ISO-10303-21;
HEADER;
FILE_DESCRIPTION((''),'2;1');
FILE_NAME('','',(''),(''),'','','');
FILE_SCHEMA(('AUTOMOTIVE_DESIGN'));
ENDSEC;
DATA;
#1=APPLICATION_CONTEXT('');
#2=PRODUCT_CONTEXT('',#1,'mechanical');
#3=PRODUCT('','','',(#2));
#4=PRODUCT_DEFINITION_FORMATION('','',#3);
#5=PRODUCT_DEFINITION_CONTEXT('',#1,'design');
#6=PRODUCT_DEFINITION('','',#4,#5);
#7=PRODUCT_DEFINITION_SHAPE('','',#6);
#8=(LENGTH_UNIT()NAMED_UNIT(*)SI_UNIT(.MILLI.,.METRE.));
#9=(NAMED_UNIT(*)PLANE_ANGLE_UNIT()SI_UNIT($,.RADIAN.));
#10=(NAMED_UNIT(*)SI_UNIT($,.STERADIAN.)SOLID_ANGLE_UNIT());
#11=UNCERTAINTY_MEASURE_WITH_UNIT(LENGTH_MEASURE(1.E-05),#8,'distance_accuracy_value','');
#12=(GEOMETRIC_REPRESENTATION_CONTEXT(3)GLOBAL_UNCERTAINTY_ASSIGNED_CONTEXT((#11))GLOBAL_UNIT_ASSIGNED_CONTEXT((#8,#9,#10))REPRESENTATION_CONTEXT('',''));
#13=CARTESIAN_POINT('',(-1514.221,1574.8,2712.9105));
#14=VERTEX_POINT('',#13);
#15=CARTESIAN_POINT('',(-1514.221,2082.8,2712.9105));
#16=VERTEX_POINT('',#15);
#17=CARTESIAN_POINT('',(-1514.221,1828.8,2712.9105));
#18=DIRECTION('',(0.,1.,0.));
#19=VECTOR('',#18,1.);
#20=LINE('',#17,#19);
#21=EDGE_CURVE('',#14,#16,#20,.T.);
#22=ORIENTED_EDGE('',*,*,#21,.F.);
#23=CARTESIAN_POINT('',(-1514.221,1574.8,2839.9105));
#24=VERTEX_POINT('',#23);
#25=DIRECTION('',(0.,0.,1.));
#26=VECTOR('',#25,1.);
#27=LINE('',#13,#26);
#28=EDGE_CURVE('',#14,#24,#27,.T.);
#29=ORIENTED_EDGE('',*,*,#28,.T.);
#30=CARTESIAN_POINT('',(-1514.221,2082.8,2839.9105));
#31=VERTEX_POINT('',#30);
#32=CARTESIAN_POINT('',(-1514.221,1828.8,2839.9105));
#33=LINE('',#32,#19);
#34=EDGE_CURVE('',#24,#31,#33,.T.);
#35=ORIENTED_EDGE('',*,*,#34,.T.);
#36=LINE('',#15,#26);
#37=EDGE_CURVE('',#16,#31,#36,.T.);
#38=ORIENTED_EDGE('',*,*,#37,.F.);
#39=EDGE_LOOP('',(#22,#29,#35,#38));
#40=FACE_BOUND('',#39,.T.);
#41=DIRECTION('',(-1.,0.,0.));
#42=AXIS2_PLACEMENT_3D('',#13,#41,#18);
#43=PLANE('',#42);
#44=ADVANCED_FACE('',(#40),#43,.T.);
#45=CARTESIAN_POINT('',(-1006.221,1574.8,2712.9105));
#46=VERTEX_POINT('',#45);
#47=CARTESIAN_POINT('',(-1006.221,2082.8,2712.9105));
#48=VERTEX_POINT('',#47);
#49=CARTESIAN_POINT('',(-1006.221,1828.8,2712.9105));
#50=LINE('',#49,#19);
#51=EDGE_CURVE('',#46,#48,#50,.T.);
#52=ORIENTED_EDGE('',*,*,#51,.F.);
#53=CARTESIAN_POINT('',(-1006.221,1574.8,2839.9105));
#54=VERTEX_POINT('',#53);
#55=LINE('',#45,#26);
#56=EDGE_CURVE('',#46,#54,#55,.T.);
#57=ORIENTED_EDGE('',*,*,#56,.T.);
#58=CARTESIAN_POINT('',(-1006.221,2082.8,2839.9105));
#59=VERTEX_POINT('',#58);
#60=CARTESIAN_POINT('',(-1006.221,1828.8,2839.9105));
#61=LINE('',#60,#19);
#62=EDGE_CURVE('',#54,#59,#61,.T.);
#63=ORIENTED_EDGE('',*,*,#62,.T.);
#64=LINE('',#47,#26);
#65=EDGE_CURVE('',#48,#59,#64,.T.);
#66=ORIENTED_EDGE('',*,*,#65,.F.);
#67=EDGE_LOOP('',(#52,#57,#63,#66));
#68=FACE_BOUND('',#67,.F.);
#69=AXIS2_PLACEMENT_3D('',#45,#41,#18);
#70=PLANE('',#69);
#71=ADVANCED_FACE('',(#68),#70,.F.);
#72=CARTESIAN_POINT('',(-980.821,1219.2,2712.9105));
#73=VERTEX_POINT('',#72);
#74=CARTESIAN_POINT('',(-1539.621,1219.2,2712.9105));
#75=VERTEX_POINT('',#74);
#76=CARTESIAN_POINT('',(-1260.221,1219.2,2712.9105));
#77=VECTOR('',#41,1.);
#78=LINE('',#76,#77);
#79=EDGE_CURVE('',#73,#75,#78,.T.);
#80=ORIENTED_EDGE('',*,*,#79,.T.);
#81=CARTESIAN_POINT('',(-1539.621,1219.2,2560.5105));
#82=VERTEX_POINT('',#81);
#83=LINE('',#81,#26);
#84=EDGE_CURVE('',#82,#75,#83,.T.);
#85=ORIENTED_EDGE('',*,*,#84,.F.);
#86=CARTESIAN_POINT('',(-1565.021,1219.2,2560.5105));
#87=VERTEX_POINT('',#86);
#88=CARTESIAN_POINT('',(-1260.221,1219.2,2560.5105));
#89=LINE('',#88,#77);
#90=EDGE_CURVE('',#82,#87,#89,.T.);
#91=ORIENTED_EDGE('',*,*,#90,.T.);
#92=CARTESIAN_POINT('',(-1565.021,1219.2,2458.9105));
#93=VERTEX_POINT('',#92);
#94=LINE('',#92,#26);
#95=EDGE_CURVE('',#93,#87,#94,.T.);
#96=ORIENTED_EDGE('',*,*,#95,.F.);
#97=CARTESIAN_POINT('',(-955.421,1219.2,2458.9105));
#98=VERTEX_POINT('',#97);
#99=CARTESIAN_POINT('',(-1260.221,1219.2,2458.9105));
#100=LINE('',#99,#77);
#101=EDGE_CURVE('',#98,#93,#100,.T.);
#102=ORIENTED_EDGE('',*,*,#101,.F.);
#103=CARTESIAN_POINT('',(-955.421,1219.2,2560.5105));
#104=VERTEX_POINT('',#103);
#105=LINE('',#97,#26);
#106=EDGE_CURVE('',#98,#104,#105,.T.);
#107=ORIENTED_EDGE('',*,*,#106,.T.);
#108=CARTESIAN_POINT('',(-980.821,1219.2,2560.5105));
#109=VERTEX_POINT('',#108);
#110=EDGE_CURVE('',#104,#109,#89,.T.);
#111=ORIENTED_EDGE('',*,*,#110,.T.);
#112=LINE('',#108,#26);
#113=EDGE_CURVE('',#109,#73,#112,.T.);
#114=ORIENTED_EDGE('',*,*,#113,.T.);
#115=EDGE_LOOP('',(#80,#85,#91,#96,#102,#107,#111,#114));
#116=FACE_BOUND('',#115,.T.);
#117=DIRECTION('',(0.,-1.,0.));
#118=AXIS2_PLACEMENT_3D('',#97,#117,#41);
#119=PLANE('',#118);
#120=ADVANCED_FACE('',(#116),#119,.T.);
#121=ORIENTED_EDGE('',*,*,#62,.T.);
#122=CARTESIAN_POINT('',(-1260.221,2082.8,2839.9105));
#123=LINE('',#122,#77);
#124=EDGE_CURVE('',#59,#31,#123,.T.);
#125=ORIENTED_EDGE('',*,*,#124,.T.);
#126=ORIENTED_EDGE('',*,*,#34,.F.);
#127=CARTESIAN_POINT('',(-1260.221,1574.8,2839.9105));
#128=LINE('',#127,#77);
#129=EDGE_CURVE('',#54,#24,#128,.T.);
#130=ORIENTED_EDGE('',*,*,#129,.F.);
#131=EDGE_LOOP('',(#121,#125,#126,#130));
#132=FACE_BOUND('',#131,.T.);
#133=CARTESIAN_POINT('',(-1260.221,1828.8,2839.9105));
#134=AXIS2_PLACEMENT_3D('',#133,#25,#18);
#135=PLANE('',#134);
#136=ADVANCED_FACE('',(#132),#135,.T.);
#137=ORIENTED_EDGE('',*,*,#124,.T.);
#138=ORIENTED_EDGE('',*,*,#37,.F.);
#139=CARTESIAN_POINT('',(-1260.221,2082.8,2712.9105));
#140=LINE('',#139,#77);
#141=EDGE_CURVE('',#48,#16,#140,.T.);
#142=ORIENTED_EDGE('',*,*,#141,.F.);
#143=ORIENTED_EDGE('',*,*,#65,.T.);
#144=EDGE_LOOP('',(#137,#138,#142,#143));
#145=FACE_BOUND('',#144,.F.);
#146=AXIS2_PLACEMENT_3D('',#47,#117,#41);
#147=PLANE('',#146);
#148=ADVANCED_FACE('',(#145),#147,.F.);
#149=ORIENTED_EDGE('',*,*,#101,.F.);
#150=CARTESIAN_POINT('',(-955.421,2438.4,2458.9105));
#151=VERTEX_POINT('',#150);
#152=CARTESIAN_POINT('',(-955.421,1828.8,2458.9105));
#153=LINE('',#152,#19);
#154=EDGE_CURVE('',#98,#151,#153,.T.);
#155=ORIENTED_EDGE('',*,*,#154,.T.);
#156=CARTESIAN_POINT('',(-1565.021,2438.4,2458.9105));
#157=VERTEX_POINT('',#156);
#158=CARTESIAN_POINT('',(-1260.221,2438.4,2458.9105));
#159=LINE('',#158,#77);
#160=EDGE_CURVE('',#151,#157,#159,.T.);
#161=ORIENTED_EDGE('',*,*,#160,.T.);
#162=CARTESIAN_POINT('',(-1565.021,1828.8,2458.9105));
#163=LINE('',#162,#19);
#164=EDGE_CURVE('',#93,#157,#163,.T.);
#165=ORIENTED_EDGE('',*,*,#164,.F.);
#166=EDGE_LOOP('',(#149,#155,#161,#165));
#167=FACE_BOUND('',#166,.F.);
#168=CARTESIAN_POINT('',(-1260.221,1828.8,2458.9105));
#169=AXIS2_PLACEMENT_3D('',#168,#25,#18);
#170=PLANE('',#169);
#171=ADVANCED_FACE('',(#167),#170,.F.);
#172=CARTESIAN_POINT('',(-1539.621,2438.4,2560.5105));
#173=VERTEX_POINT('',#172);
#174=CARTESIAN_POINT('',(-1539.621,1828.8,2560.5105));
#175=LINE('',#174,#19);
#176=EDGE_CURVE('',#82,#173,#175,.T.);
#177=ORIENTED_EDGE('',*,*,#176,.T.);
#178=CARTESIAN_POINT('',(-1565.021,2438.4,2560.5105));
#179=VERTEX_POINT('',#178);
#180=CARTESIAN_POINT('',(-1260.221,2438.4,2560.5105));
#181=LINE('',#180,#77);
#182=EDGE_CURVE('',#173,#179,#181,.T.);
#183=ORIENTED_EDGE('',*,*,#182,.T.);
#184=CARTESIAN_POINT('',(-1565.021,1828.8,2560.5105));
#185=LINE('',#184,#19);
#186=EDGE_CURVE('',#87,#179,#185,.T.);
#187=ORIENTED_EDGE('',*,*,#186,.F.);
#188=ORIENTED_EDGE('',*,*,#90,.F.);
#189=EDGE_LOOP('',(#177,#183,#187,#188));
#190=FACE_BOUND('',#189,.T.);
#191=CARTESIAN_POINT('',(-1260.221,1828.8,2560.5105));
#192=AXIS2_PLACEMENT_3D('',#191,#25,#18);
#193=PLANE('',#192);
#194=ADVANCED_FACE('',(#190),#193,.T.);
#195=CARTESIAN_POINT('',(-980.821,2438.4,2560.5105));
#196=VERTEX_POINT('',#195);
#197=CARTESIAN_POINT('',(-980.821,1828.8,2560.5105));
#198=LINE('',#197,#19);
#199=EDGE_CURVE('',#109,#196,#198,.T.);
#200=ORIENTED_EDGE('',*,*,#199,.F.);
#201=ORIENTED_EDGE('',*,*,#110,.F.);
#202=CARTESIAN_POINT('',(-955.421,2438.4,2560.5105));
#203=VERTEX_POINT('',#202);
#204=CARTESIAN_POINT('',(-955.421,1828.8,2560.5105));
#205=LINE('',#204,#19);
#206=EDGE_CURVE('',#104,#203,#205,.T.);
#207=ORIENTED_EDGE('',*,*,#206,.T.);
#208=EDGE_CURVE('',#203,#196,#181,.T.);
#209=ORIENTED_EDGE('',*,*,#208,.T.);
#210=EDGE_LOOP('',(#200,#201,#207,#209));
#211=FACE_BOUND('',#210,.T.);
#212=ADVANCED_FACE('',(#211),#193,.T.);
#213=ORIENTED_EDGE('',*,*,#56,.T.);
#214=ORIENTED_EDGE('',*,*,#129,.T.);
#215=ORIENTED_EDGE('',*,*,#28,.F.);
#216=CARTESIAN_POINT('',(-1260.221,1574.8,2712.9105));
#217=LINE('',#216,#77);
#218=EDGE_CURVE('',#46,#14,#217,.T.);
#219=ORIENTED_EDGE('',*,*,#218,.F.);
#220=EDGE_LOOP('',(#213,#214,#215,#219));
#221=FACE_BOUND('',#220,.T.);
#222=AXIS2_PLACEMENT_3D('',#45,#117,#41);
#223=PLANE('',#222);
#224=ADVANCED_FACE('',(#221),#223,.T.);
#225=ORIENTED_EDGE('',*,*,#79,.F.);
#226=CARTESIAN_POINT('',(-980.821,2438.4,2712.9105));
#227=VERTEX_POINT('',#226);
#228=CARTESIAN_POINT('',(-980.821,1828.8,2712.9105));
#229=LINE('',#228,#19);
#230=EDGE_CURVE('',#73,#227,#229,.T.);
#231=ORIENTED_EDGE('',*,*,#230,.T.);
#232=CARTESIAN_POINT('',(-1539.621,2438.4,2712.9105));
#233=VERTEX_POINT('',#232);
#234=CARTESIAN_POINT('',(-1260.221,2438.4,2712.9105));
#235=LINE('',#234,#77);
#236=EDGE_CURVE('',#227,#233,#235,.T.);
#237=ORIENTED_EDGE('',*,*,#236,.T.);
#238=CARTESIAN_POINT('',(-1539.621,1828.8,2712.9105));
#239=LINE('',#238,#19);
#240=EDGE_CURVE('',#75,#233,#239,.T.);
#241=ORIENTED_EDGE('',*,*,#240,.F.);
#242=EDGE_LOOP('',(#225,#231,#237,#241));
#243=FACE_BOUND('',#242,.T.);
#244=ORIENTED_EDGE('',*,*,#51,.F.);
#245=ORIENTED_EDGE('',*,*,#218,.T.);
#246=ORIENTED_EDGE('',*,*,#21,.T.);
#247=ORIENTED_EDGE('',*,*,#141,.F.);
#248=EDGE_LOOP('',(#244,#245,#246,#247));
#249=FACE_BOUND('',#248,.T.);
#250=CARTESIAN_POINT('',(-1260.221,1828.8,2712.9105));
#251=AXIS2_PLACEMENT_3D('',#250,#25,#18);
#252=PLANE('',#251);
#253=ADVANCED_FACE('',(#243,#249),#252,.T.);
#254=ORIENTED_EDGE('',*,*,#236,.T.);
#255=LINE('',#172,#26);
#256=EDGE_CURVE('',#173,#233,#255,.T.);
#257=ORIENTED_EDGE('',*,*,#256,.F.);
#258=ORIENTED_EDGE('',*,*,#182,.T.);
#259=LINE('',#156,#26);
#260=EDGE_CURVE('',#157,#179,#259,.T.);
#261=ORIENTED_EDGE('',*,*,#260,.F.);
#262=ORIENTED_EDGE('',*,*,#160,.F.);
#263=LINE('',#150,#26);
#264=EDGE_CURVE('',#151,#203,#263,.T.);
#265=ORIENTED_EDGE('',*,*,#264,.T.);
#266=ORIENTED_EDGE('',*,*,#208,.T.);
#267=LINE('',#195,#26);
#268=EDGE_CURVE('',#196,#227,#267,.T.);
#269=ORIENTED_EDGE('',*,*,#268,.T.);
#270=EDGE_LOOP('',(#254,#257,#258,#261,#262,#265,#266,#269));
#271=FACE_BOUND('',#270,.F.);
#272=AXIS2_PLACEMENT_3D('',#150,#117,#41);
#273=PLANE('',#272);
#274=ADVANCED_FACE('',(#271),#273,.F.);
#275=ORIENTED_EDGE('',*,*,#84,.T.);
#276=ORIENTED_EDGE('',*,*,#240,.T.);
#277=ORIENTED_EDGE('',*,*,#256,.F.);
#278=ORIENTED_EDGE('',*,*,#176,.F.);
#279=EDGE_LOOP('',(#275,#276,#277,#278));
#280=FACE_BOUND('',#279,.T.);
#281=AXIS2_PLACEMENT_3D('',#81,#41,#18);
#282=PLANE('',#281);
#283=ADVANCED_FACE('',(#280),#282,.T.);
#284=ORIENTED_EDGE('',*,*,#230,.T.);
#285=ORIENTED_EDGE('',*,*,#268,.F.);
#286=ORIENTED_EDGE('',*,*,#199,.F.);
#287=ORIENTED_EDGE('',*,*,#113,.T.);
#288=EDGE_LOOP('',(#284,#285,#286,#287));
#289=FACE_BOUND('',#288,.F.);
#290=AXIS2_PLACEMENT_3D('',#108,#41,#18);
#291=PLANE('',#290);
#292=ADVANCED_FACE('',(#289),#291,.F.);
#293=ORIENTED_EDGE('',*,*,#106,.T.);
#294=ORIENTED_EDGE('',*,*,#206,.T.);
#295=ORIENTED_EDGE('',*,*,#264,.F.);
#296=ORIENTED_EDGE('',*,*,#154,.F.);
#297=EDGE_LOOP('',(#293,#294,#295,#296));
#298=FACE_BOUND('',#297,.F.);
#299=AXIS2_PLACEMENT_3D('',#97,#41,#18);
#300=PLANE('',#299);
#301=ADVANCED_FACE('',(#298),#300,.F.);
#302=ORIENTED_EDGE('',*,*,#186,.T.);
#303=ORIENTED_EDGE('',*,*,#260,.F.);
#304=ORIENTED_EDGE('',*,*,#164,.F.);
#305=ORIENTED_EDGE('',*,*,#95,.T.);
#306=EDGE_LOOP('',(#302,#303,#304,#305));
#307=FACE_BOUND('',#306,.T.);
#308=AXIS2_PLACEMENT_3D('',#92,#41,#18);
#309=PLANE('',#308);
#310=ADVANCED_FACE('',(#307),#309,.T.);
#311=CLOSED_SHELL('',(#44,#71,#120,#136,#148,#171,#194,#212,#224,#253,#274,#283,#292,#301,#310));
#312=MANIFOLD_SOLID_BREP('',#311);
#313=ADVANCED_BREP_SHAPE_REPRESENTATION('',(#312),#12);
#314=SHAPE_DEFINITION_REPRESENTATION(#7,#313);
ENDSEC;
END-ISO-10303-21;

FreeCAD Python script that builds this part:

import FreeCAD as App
import Part
import Sketcher

V = App.Vector
Q = App.Units.Quantity

doc = App.newDocument("Part")
params = doc.addObject("Spreadsheet::Sheet", "Params")
for row, (alias, value) in enumerate([
    ("sketch1_width", "48 in"),
    ("sketch1_height", "24 in"),
    ("pad1_length", "4 in"),
    ("sketch2_width", "48 in"),
    ("sketch2_height", "22 in"),
    ("pad2_length", "6 in"),
    ("sketch3_width", "20 in"),
    ("pad3_length", "5 in"),
], start=1):
    params.set(f"A{row}", alias)
    params.set(f"B{row}", "=" + value)
    params.setAlias(f"B{row}", alias)

body = doc.addObject("PartDesign::Body", "Body")

# Sketch on XY plane
sketch1 = doc.addObject("Sketcher::SketchObject", "Sketch")
body.addObject(sketch1)
sketch1.AttachmentSupport = (doc.XY_Plane, [""])
sketch1.MapMode = "FlatFace"
sketch1.addGeometry([
    Part.LineSegment(V(0, 610, 0), V(0, 0, 0)),
    Part.LineSegment(V(0, 0, 0), V(1219, 0, 0)),
    Part.LineSegment(V(1219, 0, 0), V(1219, 610, 0)),
    Part.LineSegment(V(1219, 610, 0), V(0, 610, 0)),
], False)
sketch1.addConstraint([
    Sketcher.Constraint("Coincident", 0, 2, 1, 1),
    Sketcher.Constraint("Coincident", 1, 2, 2, 1),
    Sketcher.Constraint("Coincident", 2, 2, 3, 1),
    Sketcher.Constraint("Coincident", 3, 2, 0, 1),
    Sketcher.Constraint("Vertical", 0),
    Sketcher.Constraint("Horizontal", 1),
    Sketcher.Constraint("Vertical", 2),
    Sketcher.Constraint("Horizontal", 3),
    Sketcher.Constraint("Coincident", 0, 2, -1, 1),
    Sketcher.Constraint("DistanceX", 1, 1, 1, 2, Q("48 in")),
    Sketcher.Constraint("DistanceY", 0, 2, 0, 1, Q("24 in")),
])
sketch1.setExpression("Constraints[9]", "Params.sketch1_width")
sketch1.setExpression("Constraints[10]", "Params.sketch1_height")
pad1 = doc.addObject("PartDesign::Pad", "Pad")
body.addObject(pad1)
pad1.Profile = sketch1
pad1.setExpression("Length", "Params.pad1_length")

# Sketch on XY plane
sketch2 = doc.addObject("Sketcher::SketchObject", "Sketch001")
body.addObject(sketch2)
sketch2.AttachmentSupport = (doc.XY_Plane, [""])
sketch2.MapMode = "FlatFace"
sketch2.AttachmentOffset = App.Placement(V(0, 0, 4 * 25.4), App.Rotation())
sketch2.addGeometry([
    Part.LineSegment(V(0, 584, 0), V(0, 25, 0)),
    Part.LineSegment(V(0, 25, 0), V(1219, 25, 0)),
    Part.LineSegment(V(1219, 25, 0), V(1219, 584, 0)),
    Part.LineSegment(V(1219, 584, 0), V(0, 584, 0)),
], False)
sketch2.addConstraint([
    Sketcher.Constraint("Coincident", 0, 2, 1, 1),
    Sketcher.Constraint("Coincident", 1, 2, 2, 1),
    Sketcher.Constraint("Coincident", 2, 2, 3, 1),
    Sketcher.Constraint("Coincident", 3, 2, 0, 1),
    Sketcher.Constraint("Vertical", 0),
    Sketcher.Constraint("Horizontal", 1),
    Sketcher.Constraint("Vertical", 2),
    Sketcher.Constraint("Horizontal", 3),
    Sketcher.Constraint("PointOnObject", 0, 2, -2),
    Sketcher.Constraint("DistanceX", 1, 1, 1, 2, Q("48 in")),
    Sketcher.Constraint("DistanceY", 0, 2, 0, 1, Q("22 in")),
    Sketcher.Constraint("DistanceY", -1, 1, 0, 2, Q("1 in")),
])
sketch2.setExpression("Constraints[9]", "Params.sketch2_width")
sketch2.setExpression("Constraints[10]", "Params.sketch2_height")
pad2 = doc.addObject("PartDesign::Pad", "Pad001")
body.addObject(pad2)
pad2.Profile = sketch2
pad2.setExpression("Length", "Params.pad2_length")

# Sketch on XY plane
sketch3 = doc.addObject("Sketcher::SketchObject", "Sketch002")
body.addObject(sketch3)
sketch3.AttachmentSupport = (doc.XY_Plane, [""])
sketch3.MapMode = "FlatFace"
sketch3.AttachmentOffset = App.Placement(V(0, 0, 10 * 25.4), App.Rotation())
sketch3.addGeometry([
    Part.LineSegment(V(356, 559, 0), V(356, 51, 0)),
    Part.LineSegment(V(356, 51, 0), V(864, 51, 0)),
    Part.LineSegment(V(864, 51, 0), V(864, 559, 0)),
    Part.LineSegment(V(864, 559, 0), V(356, 559, 0)),
], False)
sketch3.addConstraint([
    Sketcher.Constraint("Coincident", 0, 2, 1, 1),
    Sketcher.Constraint("Coincident", 1, 2, 2, 1),
    Sketcher.Constraint("Coincident", 2, 2, 3, 1),
    Sketcher.Constraint("Coincident", 3, 2, 0, 1),
    Sketcher.Constraint("Vertical", 0),
    Sketcher.Constraint("Horizontal", 1),
    Sketcher.Constraint("Vertical", 2),
    Sketcher.Constraint("Horizontal", 3),
    Sketcher.Constraint("Equal", 3, 0),
    Sketcher.Constraint("DistanceX", 1, 1, 1, 2, Q("20 in")),
    Sketcher.Constraint("DistanceX", -1, 1, 0, 2, Q("14 in")),
    Sketcher.Constraint("DistanceY", -1, 1, 0, 2, Q("2 in")),
])
sketch3.setExpression("Constraints[9]", "Params.sketch3_width")
pad3 = doc.addObject("PartDesign::Pad", "Pad002")
body.addObject(pad3)
pad3.Profile = sketch3
pad3.setExpression("Length", "Params.pad3_length")
body2 = doc.addObject("PartDesign::Body", "Body001")
doc.recompute()

body.Placement = App.Placement(V(-955.421, 1219.2, 2458.9105), App.Rotation(V(0, 0, 1), 90))
boolean = doc.addObject("PartDesign::Boolean", "Boolean")
body2.addObject(boolean)
boolean.Type = "Fuse"
boolean.addObjects([body])

doc.recompute()
